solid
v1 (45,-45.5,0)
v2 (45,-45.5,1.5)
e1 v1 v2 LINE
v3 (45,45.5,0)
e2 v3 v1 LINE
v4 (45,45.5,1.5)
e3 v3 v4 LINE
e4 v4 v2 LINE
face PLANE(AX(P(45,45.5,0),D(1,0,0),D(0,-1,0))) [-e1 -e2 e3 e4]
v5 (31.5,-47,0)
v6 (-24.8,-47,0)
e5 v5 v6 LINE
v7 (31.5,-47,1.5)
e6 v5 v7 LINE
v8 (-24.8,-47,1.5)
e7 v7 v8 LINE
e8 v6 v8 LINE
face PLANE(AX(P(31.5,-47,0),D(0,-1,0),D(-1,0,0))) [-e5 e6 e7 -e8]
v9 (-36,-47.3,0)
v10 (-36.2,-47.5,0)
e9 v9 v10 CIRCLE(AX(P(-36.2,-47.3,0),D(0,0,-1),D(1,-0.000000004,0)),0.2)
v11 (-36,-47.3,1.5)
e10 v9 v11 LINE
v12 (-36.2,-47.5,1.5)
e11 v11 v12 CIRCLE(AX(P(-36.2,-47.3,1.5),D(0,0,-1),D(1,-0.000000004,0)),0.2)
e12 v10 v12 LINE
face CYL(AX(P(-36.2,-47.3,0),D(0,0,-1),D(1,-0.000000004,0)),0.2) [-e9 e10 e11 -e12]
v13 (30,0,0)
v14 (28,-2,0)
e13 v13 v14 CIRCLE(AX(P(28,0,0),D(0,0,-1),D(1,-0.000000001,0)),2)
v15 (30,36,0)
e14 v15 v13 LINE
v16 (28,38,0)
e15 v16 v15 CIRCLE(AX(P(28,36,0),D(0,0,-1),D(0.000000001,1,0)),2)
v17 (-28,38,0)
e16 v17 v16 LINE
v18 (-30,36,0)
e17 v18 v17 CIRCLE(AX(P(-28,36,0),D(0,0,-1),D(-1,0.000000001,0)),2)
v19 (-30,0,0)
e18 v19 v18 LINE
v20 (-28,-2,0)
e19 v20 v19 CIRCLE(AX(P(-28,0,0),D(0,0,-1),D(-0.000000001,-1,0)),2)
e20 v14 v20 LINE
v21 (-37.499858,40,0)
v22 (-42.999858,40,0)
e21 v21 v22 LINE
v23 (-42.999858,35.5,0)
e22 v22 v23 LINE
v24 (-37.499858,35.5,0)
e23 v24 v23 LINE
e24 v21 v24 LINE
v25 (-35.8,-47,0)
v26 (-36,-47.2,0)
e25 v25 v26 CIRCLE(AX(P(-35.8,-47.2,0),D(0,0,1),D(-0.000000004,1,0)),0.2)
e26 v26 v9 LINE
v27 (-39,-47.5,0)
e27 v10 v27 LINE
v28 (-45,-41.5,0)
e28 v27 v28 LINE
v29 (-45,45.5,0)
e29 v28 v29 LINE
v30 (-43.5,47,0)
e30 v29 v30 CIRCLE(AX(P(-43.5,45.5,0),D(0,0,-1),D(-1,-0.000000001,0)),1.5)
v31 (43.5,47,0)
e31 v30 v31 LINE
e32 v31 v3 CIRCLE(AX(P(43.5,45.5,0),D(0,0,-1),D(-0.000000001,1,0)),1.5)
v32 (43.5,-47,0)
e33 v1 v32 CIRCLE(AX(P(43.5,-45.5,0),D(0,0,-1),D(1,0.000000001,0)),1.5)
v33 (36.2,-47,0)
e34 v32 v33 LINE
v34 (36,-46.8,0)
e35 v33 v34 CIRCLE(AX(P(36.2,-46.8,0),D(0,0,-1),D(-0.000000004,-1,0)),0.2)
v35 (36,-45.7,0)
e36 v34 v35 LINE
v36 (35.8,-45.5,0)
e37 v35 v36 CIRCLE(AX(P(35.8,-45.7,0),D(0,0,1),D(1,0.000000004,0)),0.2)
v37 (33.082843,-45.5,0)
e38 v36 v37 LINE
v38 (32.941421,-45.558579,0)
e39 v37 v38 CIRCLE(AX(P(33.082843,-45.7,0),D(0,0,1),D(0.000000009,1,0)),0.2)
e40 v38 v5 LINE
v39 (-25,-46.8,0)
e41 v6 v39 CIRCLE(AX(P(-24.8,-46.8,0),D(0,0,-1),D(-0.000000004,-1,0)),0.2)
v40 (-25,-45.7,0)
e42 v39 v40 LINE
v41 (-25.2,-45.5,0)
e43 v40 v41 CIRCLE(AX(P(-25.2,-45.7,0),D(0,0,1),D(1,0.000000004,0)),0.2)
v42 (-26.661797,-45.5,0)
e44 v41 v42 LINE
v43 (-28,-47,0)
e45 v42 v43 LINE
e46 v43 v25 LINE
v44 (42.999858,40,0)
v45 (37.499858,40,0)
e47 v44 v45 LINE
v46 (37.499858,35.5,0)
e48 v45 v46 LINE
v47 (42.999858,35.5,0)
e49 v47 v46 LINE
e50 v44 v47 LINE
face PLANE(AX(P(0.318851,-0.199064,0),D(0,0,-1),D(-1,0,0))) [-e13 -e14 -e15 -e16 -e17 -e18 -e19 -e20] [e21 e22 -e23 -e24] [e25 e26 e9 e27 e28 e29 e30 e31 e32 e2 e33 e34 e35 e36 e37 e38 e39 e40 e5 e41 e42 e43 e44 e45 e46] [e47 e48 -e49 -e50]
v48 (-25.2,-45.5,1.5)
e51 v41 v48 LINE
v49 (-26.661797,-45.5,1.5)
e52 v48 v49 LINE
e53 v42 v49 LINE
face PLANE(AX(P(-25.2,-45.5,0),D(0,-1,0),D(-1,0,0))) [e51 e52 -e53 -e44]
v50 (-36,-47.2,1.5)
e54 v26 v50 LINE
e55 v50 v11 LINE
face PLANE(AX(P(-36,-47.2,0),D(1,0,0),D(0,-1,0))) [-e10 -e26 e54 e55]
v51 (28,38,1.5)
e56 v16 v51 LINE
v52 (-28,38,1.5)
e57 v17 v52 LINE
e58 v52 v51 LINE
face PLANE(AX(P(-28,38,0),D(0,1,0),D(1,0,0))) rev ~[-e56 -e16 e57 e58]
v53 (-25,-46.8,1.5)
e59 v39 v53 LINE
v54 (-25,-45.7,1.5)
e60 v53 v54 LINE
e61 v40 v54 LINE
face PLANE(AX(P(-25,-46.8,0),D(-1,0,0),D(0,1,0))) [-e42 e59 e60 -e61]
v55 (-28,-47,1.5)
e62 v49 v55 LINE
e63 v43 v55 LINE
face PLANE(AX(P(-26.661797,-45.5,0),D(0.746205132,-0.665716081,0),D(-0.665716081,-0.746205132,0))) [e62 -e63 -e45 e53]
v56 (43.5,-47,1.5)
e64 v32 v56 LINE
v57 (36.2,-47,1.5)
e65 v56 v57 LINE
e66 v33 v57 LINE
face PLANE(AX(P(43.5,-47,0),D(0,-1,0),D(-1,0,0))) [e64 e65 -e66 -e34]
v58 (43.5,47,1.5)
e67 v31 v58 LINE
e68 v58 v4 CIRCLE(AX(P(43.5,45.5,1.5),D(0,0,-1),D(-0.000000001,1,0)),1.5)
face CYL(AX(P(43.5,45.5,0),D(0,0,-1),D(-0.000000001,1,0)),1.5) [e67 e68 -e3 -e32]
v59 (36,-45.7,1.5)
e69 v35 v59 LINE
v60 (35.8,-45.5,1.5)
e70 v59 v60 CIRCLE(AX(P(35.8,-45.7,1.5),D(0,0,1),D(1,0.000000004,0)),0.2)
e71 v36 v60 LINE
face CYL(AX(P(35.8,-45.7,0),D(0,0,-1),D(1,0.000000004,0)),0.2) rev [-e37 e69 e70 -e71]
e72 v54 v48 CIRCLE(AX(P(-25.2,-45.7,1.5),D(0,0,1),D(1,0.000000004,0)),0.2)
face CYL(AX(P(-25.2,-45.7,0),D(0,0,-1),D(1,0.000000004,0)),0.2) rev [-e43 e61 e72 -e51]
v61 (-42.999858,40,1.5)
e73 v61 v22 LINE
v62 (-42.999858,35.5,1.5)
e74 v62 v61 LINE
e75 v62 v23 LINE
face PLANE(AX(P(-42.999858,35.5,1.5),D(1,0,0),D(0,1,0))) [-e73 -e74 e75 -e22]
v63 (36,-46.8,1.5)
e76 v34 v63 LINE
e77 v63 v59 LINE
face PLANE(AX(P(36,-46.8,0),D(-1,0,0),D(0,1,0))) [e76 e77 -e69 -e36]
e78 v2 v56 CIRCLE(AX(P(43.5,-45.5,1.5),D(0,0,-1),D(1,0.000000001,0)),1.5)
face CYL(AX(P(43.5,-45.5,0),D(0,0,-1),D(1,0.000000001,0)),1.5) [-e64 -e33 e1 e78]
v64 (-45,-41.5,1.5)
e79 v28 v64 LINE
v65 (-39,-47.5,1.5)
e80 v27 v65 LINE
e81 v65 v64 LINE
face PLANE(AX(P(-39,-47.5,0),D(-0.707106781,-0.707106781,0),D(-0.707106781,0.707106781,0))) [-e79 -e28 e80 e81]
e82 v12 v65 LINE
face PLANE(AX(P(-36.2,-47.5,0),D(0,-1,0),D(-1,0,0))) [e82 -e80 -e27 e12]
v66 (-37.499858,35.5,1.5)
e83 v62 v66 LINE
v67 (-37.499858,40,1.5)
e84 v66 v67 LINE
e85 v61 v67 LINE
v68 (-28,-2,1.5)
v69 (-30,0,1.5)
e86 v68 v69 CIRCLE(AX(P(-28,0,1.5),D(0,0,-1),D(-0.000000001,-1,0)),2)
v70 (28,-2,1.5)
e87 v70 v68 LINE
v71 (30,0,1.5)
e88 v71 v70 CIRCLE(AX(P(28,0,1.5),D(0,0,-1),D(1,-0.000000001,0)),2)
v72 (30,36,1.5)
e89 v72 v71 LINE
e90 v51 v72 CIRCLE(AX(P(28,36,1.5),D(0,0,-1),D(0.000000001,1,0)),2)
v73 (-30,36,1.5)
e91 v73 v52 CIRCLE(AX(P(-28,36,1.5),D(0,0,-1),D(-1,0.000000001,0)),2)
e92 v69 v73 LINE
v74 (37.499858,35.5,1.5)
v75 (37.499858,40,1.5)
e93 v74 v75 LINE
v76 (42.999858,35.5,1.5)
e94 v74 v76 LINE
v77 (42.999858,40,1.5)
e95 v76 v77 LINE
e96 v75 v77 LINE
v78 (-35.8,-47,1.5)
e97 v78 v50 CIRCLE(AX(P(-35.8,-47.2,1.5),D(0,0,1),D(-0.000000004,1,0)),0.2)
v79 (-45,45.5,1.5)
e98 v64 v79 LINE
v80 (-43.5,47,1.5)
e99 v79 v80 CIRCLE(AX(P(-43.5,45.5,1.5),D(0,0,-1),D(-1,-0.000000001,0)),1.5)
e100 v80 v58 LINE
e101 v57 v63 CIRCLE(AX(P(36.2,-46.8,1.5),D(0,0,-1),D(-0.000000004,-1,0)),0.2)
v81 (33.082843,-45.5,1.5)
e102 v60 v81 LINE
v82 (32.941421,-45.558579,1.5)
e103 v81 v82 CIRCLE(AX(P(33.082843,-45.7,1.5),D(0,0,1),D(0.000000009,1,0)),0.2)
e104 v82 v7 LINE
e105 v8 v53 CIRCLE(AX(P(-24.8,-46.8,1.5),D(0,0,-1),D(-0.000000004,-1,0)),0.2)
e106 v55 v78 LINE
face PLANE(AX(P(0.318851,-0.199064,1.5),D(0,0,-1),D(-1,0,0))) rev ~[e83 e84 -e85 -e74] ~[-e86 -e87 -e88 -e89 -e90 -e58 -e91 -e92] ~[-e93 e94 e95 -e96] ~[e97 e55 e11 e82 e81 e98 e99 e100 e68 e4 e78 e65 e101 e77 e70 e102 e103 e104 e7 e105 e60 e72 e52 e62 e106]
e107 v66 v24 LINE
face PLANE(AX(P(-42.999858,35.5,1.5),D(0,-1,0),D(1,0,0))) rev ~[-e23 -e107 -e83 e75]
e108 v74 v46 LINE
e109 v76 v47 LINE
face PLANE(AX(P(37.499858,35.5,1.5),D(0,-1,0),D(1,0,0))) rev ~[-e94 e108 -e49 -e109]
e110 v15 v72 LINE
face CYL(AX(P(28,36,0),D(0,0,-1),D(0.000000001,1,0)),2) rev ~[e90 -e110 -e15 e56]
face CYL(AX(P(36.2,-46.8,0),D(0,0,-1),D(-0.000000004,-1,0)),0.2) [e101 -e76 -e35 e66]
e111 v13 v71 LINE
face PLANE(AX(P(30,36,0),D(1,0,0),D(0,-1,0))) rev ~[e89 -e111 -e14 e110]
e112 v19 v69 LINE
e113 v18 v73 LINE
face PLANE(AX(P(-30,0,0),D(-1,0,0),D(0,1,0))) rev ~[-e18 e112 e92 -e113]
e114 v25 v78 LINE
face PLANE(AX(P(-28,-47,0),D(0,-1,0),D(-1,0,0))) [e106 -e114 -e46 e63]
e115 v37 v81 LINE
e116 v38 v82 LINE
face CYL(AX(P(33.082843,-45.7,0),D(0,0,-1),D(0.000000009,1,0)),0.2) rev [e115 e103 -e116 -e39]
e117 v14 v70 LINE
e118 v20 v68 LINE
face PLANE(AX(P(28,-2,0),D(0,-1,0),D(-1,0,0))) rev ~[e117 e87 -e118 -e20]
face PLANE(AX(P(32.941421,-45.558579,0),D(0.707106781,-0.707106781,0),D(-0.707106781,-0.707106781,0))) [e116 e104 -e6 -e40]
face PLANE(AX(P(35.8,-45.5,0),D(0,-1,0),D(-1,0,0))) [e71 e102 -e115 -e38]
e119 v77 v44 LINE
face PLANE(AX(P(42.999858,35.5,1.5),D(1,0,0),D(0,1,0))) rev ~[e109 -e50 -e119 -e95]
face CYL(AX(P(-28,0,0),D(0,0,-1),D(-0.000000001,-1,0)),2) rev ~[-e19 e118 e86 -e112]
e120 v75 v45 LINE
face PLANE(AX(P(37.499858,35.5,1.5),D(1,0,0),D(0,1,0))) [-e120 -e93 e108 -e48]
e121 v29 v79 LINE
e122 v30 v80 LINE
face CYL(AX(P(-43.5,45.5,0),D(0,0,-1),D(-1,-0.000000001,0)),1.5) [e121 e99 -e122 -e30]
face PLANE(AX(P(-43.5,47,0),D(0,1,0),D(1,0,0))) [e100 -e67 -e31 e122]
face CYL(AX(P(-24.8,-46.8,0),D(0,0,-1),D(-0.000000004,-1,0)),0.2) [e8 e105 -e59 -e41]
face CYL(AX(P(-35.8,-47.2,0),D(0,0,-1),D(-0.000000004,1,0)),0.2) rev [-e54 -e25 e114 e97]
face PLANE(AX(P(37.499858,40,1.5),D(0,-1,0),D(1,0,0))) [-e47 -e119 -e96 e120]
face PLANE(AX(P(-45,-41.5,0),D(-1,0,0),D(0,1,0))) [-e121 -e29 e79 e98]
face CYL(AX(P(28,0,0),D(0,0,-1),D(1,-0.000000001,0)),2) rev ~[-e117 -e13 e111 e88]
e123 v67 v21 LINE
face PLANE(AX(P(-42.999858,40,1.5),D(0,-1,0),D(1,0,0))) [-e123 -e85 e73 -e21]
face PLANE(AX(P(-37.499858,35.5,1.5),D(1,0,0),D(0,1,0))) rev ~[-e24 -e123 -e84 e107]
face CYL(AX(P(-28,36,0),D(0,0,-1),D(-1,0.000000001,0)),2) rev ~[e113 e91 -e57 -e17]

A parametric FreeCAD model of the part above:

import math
import FreeCAD as App
import Part
import Sketcher
from FreeCAD import Vector
Q = App.Units.Quantity

doc = App.newDocument("Part")
body = doc.addObject("PartDesign::Body", "Body")

sketch1 = body.newObject("Sketcher::SketchObject", "Sketch")
sketch1.AttachmentSupport = (doc.getObject("XY_Plane"), [""])
sketch1.MapMode = "FlatFace"
sketch1.addGeometry([
    Part.LineSegment(Vector(43.5, 47, 0), Vector(-43.5, 47, 0)),
    Part.ArcOfCircle(Part.Circle(Vector(-43.5, 45.5, 0), Vector(0, 0, 1), 1.5), math.radians(90), math.radians(180)),
    Part.LineSegment(Vector(-45, 45.5, 0), Vector(-45, -41.5, 0)),
    Part.LineSegment(Vector(-45, -41.5, 0), Vector(-39, -47.5, 0)),
    Part.LineSegment(Vector(-39, -47.5, 0), Vector(-36.2, -47.5, 0)),
    Part.ArcOfCircle(Part.Circle(Vector(-36.2, -47.3, 0), Vector(0, 0, 1), 0.2), math.radians(-90), math.radians(0)),
    Part.LineSegment(Vector(-36, -47.3, 0), Vector(-36, -47.2, 0)),
    Part.ArcOfCircle(Part.Circle(Vector(-35.8, -47.2, 0), Vector(0, 0, 1), 0.2), math.radians(90), math.radians(180)),
    Part.LineSegment(Vector(-35.8, -47, 0), Vector(-28, -47, 0)),
    Part.LineSegment(Vector(-28, -47, 0), Vector(-26.661797, -45.5, 0)),
    Part.LineSegment(Vector(-26.661797, -45.5, 0), Vector(-25.2, -45.5, 0)),
    Part.ArcOfCircle(Part.Circle(Vector(-25.2, -45.7, 0), Vector(0, 0, 1), 0.2), math.radians(0), math.radians(90)),
    Part.LineSegment(Vector(-25, -45.7, 0), Vector(-25, -46.8, 0)),
    Part.ArcOfCircle(Part.Circle(Vector(-24.8, -46.8, 0), Vector(0, 0, 1), 0.2), math.radians(-180), math.radians(-90)),
    Part.LineSegment(Vector(-24.8, -47, 0), Vector(31.5, -47, 0)),
    Part.LineSegment(Vector(31.5, -47, 0), Vector(32.941421, -45.558579, 0)),
    Part.ArcOfCircle(Part.Circle(Vector(33.082843, -45.7, 0), Vector(0, 0, 1), 0.2), math.radians(89.999999), math.radians(135.000001)),
    Part.LineSegment(Vector(33.082843, -45.5, 0), Vector(35.8, -45.5, 0)),
    Part.ArcOfCircle(Part.Circle(Vector(35.8, -45.7, 0), Vector(0, 0, 1), 0.2), math.radians(0), math.radians(90)),
    Part.LineSegment(Vector(36, -45.7, 0), Vector(36, -46.8, 0)),
    Part.ArcOfCircle(Part.Circle(Vector(36.2, -46.8, 0), Vector(0, 0, 1), 0.2), math.radians(-180), math.radians(-90)),
    Part.LineSegment(Vector(36.2, -47, 0), Vector(43.5, -47, 0)),
    Part.ArcOfCircle(Part.Circle(Vector(43.5, -45.5, 0), Vector(0, 0, 1), 1.5), math.radians(-90), math.radians(0)),
    Part.LineSegment(Vector(45, -45.5, 0), Vector(45, 45.5, 0)),
    Part.ArcOfCircle(Part.Circle(Vector(43.5, 45.5, 0), Vector(0, 0, 1), 1.5), math.radians(0), math.radians(90)),
], False)
sketch1.addConstraint([
    Sketcher.Constraint("Tangent", 0, 2, 1, 1),
    Sketcher.Constraint("Tangent", 1, 2, 2, 1),
    Sketcher.Constraint("Coincident", 2, 2, 3, 1),
    Sketcher.Constraint("Coincident", 3, 2, 4, 1),
    Sketcher.Constraint("Tangent", 4, 2, 5, 1),
    Sketcher.Constraint("Tangent", 5, 2, 6, 1),
    Sketcher.Constraint("Tangent", 6, 2, 7, 2),
    Sketcher.Constraint("Tangent", 7, 1, 8, 1),
    Sketcher.Constraint("Coincident", 8, 2, 9, 1),
    Sketcher.Constraint("Coincident", 9, 2, 10, 1),
    Sketcher.Constraint("Tangent", 10, 2, 11, 2),
    Sketcher.Constraint("Tangent", 11, 1, 12, 1),
    Sketcher.Constraint("Tangent", 12, 2, 13, 1),
    Sketcher.Constraint("Tangent", 13, 2, 14, 1),
    Sketcher.Constraint("Coincident", 14, 2, 15, 1),
    Sketcher.Constraint("Tangent", 15, 2, 16, 2),
    Sketcher.Constraint("Tangent", 16, 1, 17, 1),
    Sketcher.Constraint("Tangent", 17, 2, 18, 2),
    Sketcher.Constraint("Tangent", 18, 1, 19, 1),
    Sketcher.Constraint("Tangent", 19, 2, 20, 1),
    Sketcher.Constraint("Tangent", 20, 2, 21, 1),
    Sketcher.Constraint("Tangent", 21, 2, 22, 1),
    Sketcher.Constraint("Tangent", 22, 2, 23, 1),
    Sketcher.Constraint("Tangent", 23, 2, 24, 1),
    Sketcher.Constraint("Tangent", 24, 2, 0, 1),
    Sketcher.Constraint("Horizontal", 0),
    Sketcher.Constraint("Vertical", 2),
    Sketcher.Constraint("Horizontal", 4),
    Sketcher.Constraint("Vertical", 6),
    Sketcher.Constraint("Horizontal", 8),
    Sketcher.Constraint("Horizontal", 10),
    Sketcher.Constraint("Vertical", 12),
    Sketcher.Constraint("Horizontal", 14),
    Sketcher.Constraint("Horizontal", 17),
    Sketcher.Constraint("Vertical", 19),
    Sketcher.Constraint("Horizontal", 21),
    Sketcher.Constraint("Vertical", 23),
    Sketcher.Constraint("Equal", 5, 7),
    Sketcher.Constraint("Equal", 7, 11),
    Sketcher.Constraint("Equal", 11, 13),
    Sketcher.Constraint("Equal", 13, 16),
    Sketcher.Constraint("Equal", 16, 18),
    Sketcher.Constraint("Equal", 18, 20),
    Sketcher.Constraint("Equal", 1, 22),
    Sketcher.Constraint("Equal", 22, 24),
    Sketcher.Constraint("Symmetric", 1, 3, 22, 3, -1, 1),
    Sketcher.Constraint("Perpendicular", 3, 15),
    Sketcher.Constraint("Horizontal", 11, 3, 16, 3),
    Sketcher.Constraint("Horizontal", 13, 3, 20, 3),
    Sketcher.Constraint("Horizontal", 22, 3, 9, 2),
    Sketcher.Constraint("Horizontal", 8, 2, 13, 2),
    Sketcher.Constraint("Equal", 0, 2),
    Sketcher.Constraint("Radius", 1, 1.5),
    Sketcher.Constraint("Radius", 5, 0.2),
    Sketcher.Constraint("DistanceX", 0, 2, 0, 1, 87.0),
    Sketcher.Constraint("DistanceY", 23, 1, 23, 2, 91.0),
    Sketcher.Constraint("Angle", 3, Q("-45 deg")),
    Sketcher.Constraint("DistanceX", 4, 1, 4, 2, 2.8),
    Sketcher.Constraint("DistanceX", 8, 1, 8, 2, 7.8),
    Sketcher.Constraint("DistanceX", 14, 1, 14, 2, 56.3),
    Sketcher.Constraint("DistanceX", 21, 1, 21, 2, 7.3),
    Sketcher.Constraint("DistanceY", 6, 1, 6, 2, 0.1),
    Sketcher.Constraint("DistanceX", 11, 1, -1, 1, 25.0),
    Sketcher.Constraint("Distance", 9, 2.010171),
])
pad1 = body.newObject("PartDesign::Pad", "Pad")
pad1.Profile = sketch1
pad1.Length = 1.5

sketch2 = body.newObject("Sketcher::SketchObject", "Sketch001")
sketch2.AttachmentSupport = (doc.getObject("XY_Plane"), [""])
sketch2.MapMode = "FlatFace"
sketch2.AttachmentOffset = App.Placement(Vector(0, 0, 1.5), App.Rotation())
sketch2.addGeometry([
    Part.LineSegment(Vector(37.499858, 40, 0), Vector(37.499858, 35.5, 0)),
    Part.LineSegment(Vector(37.499858, 35.5, 0), Vector(42.999858, 35.5, 0)),
    Part.LineSegment(Vector(42.999858, 35.5, 0), Vector(42.999858, 40, 0)),
    Part.LineSegment(Vector(42.999858, 40, 0), Vector(37.499858, 40, 0)),
    Part.LineSegment(Vector(-42.999858, 40, 0), Vector(-42.999858, 35.5, 0)),
    Part.LineSegment(Vector(-42.999858, 35.5, 0), Vector(-37.499858, 35.5, 0)),
    Part.LineSegment(Vector(-37.499858, 35.5, 0), Vector(-37.499858, 40, 0)),
    Part.LineSegment(Vector(-37.499858, 40, 0), Vector(-42.999858, 40, 0)),
], False)
sketch2.addConstraint([
    Sketcher.Constraint("Coincident", 0, 2, 1, 1),
    Sketcher.Constraint("Coincident", 1, 2, 2, 1),
    Sketcher.Constraint("Coincident", 2, 2, 3, 1),
    Sketcher.Constraint("Coincident", 3, 2, 0, 1),
    Sketcher.Constraint("Coincident", 4, 2, 5, 1),
    Sketcher.Constraint("Coincident", 5, 2, 6, 1),
    Sketcher.Constraint("Coincident", 6, 2, 7, 1),
    Sketcher.Constraint("Coincident", 7, 2, 4, 1),
    Sketcher.Constraint("Vertical", 0),
    Sketcher.Constraint("Horizontal", 1),
    Sketcher.Constraint("Vertical", 2),
    Sketcher.Constraint("Horizontal", 3),
    Sketcher.Constraint("Vertical", 4),
    Sketcher.Constraint("Horizontal", 5),
    Sketcher.Constraint("Vertical", 6),
    Sketcher.Constraint("Horizontal", 7),
    Sketcher.Constraint("Symmetric", 1, 2, 4, 2, -2),
    Sketcher.Constraint("Symmetric", 3, 2, 6, 2, -2),
    Sketcher.Constraint("DistanceX", 1, 1, 1, 2, 5.5),
    Sketcher.Constraint("DistanceY", 0, 2, 0, 1, 4.5),
    Sketcher.Constraint("DistanceY", -1, 1, 2, 2, 40.0),
    Sketcher.Constraint("DistanceX", -1, 1, 0, 2, 37.499858),
])
pocket1 = body.newObject("PartDesign::Pocket", "Pocket")
pocket1.Profile = sketch2
pocket1.Type = "ThroughAll"

sketch3 = body.newObject("Sketcher::SketchObject", "Sketch002")
sketch3.AttachmentSupport = (doc.getObject("XY_Plane"), [""])
sketch3.MapMode = "FlatFace"
sketch3.addGeometry([
    Part.LineSegment(Vector(28, 38, 0), Vector(-28, 38, 0)),
    Part.ArcOfCircle(Part.Circle(Vector(-28, 36, 0), Vector(0, 0, 1), 2), math.radians(90), math.radians(180)),
    Part.LineSegment(Vector(-30, 36, 0), Vector(-30, 0, 0)),
    Part.ArcOfCircle(Part.Circle(Vector(-28, 0, 0), Vector(0, 0, 1), 2), math.radians(-180), math.radians(-90)),
    Part.LineSegment(Vector(-28, -2, 0), Vector(28, -2, 0)),
    Part.ArcOfCircle(Part.Circle(Vector(28, 0, 0), Vector(0, 0, 1), 2), math.radians(-90), math.radians(0)),
    Part.LineSegment(Vector(30, 0, 0), Vector(30, 36, 0)),
    Part.ArcOfCircle(Part.Circle(Vector(28, 36, 0), Vector(0, 0, 1), 2), math.radians(0), math.radians(90)),
], False)
sketch3.addConstraint([
    Sketcher.Constraint("Tangent", 0, 2, 1, 1),
    Sketcher.Constraint("Tangent", 1, 2, 2, 1),
    Sketcher.Constraint("Tangent", 2, 2, 3, 1),
    Sketcher.Constraint("Tangent", 3, 2, 4, 1),
    Sketcher.Constraint("Tangent", 4, 2, 5, 1),
    Sketcher.Constraint("Tangent", 5, 2, 6, 1),
    Sketcher.Constraint("Tangent", 6, 2, 7, 1),
    Sketcher.Constraint("Tangent", 7, 2, 0, 1),
    Sketcher.Constraint("Horizontal", 0),
    Sketcher.Constraint("Vertical", 2),
    Sketcher.Constraint("Horizontal", 4),
    Sketcher.Constraint("Vertical", 6),
    Sketcher.Constraint("Equal", 1, 3),
    Sketcher.Constraint("Equal", 3, 5),
    Sketcher.Constraint("Equal", 5, 7),
    Sketcher.Constraint("Symmetric", 3, 3, 5, 3, -1, 1),
    Sketcher.Constraint("Radius", 1, 2.0),
    Sketcher.Constraint("DistanceX", 0, 2, 0, 1, 56.0),
    Sketcher.Constraint("DistanceY", 2, 2, 2, 1, 36.0),
])
pocket2 = body.newObject("PartDesign::Pocket", "Pocket001")
pocket2.Profile = sketch3
pocket2.Type = "ThroughAll"
pocket2.Reversed = True

doc.recompute()
